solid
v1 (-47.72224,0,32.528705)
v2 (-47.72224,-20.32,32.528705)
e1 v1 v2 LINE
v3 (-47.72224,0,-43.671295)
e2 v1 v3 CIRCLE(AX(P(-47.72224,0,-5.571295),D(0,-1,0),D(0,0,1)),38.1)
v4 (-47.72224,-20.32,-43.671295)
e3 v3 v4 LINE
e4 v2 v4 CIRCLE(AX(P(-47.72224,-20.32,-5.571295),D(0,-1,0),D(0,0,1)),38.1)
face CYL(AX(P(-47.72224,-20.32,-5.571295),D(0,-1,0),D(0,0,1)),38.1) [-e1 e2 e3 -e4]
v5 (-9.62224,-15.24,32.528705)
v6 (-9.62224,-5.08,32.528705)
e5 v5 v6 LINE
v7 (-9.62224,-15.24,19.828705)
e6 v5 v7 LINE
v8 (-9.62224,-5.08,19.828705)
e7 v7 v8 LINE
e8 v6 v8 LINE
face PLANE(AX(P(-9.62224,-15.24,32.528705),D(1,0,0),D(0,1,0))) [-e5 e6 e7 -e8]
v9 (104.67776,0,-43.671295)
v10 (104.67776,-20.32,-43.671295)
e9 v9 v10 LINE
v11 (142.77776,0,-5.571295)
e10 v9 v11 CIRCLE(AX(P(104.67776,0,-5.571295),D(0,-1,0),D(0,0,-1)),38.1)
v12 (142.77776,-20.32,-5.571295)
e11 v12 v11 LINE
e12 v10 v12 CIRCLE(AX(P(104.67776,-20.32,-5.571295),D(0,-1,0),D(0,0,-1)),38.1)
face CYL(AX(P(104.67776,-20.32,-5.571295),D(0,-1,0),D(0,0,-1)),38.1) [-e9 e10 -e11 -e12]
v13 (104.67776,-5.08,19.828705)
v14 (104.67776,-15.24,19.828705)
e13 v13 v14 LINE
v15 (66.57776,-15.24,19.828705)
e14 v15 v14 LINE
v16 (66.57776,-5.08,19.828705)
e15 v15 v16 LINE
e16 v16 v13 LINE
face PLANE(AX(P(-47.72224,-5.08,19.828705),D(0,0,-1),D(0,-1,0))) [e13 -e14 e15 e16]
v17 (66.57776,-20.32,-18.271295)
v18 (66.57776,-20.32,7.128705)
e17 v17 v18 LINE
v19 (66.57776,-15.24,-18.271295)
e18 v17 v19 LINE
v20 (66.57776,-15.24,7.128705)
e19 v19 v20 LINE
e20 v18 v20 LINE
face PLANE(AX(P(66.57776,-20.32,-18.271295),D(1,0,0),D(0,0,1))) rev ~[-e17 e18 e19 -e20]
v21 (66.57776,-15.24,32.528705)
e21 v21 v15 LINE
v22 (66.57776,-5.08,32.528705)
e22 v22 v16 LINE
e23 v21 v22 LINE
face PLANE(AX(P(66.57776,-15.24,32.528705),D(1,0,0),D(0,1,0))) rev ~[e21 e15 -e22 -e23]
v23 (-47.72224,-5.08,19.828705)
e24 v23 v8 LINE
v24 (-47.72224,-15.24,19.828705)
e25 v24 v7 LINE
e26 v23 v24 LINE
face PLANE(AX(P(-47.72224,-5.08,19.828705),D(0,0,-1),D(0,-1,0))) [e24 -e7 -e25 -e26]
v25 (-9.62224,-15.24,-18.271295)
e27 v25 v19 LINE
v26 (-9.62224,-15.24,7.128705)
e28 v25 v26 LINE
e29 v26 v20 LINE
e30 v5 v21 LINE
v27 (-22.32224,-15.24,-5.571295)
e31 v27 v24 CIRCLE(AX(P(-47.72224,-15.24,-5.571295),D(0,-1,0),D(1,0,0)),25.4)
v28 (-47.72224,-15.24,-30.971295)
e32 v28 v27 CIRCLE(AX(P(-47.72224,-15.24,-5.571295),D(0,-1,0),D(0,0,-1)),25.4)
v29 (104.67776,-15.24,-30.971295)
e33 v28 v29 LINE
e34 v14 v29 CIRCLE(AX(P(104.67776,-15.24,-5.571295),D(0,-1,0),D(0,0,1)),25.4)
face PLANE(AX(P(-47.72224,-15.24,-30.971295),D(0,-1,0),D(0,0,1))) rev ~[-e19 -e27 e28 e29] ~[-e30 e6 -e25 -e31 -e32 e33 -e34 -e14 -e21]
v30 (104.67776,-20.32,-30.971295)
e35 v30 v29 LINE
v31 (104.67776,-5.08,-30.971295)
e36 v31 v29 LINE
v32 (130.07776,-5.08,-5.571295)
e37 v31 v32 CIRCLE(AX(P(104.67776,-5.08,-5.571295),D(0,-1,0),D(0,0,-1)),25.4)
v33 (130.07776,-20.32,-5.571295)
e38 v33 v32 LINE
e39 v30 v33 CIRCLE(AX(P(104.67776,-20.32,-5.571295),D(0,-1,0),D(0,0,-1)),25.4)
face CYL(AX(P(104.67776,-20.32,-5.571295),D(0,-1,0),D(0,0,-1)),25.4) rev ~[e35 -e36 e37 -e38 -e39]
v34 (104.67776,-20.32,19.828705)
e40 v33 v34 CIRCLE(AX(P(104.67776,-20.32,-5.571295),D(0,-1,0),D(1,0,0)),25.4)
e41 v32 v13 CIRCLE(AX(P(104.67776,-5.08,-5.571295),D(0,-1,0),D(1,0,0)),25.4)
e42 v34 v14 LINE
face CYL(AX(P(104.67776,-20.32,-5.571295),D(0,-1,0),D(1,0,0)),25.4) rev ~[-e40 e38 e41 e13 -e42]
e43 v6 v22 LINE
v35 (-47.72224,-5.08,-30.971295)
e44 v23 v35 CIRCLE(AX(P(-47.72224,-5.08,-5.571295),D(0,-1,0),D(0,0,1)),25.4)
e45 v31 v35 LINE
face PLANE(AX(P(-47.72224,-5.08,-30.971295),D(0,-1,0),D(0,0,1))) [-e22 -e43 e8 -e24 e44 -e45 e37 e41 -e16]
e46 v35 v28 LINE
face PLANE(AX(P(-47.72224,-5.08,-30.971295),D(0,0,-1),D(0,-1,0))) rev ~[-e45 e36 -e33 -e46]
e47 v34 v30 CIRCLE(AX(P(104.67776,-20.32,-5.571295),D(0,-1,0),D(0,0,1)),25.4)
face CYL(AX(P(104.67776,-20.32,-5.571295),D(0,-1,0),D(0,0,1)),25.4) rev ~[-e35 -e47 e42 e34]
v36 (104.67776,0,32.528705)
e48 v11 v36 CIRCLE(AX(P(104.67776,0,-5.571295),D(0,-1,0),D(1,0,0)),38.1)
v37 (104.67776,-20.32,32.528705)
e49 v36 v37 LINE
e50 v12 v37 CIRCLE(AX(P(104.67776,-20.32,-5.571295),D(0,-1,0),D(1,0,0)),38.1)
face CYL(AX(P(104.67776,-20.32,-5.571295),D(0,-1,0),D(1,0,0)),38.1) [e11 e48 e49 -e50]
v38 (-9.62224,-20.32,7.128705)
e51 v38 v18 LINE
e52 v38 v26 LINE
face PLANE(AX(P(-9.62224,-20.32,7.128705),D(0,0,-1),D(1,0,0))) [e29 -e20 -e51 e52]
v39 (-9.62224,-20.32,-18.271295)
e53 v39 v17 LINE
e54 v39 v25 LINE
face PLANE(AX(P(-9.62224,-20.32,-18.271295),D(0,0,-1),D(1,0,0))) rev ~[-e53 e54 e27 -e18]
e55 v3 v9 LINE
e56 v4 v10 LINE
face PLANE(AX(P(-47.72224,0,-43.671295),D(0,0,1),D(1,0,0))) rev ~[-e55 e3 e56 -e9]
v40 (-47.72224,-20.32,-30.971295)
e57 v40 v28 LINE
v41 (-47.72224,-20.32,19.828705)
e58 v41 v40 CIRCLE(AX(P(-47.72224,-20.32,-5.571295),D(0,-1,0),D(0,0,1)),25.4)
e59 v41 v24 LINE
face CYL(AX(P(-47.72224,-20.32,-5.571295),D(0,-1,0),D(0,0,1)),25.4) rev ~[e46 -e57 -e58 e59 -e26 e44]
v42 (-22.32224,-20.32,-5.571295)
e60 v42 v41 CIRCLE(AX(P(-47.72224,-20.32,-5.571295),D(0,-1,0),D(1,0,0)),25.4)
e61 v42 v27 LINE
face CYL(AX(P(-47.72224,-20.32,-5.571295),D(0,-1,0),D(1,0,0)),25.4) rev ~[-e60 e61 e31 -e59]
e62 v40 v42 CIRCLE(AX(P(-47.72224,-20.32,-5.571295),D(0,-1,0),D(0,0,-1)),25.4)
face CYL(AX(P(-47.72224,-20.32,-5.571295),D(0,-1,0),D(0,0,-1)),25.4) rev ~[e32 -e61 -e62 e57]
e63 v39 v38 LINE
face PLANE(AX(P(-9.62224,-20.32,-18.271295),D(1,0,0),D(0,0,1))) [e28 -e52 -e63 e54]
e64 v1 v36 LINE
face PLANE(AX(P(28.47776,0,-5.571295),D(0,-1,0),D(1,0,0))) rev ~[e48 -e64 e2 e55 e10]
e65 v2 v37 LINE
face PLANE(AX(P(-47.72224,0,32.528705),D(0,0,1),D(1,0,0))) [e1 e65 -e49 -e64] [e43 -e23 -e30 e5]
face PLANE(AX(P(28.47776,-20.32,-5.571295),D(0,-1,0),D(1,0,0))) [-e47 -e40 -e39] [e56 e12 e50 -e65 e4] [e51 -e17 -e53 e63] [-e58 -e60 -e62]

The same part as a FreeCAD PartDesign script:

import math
import FreeCAD as App
import Part
import Sketcher

V = App.Vector
Q = App.Units.Quantity


def add_polygon(sketch, points):
    """Adds a closed chain of lines whose ends are joined by coincident constraints."""
    first, n = sketch.GeometryCount, len(points)
    for a, b in zip(points, points[1:] + points[:1]):
        sketch.addGeometry(Part.LineSegment(App.Vector(*a, 0), App.Vector(*b, 0)), False)
    for i in range(n):
        sketch.addConstraint(Sketcher.Constraint("Coincident", first + i, 2, first + (i + 1) % n, 1))

doc = App.newDocument("Part")
body = doc.addObject("PartDesign::Body", "Body")

sketch1 = body.newObject("Sketcher::SketchObject", "Sketch")
sketch1.AttachmentSupport = (doc.getObject("XZ_Plane"), [""])
sketch1.MapMode = "FlatFace"
add_polygon(sketch1, [(-47.72224, 32.528705), (-47.72224, -43.671295), (104.67776, -43.671295), (104.67776, 32.528705)])
sketch1.addConstraint(Sketcher.Constraint("Vertical", 0))
sketch1.addConstraint(Sketcher.Constraint("Horizontal", 1))
sketch1.addConstraint(Sketcher.Constraint("Vertical", 2))
sketch1.addConstraint(Sketcher.Constraint("Horizontal", 3))
sketch1.addConstraint(Sketcher.Constraint("DistanceX", 1, 1, 1, 2, Q("6 in")))
sketch1.addConstraint(Sketcher.Constraint("DistanceY", 0, 2, 0, 1, Q("3 in")))
sketch1.addConstraint(Sketcher.Constraint("DistanceX", 0, 2, -1, 1, 47.72224))
sketch1.addConstraint(Sketcher.Constraint("DistanceY", 0, 2, -1, 1, 43.671295))
pad1 = body.newObject("PartDesign::Pad", "Pad")
pad1.Profile = sketch1
pad1.Length = Q("0.8 in")

sketch2 = body.newObject("Sketcher::SketchObject", "Sketch001")
sketch2.AttachmentSupport = (doc.getObject("XY_Plane"), [""])
sketch2.MapMode = "FlatFace"
sketch2.AttachmentOffset = App.Placement(V(0, 0, 32.528705), App.Rotation())
add_polygon(sketch2, [(-9.62224, -5.08), (-9.62224, -15.24), (66.57776, -15.24), (66.57776, -5.08)])
sketch2.addConstraint(Sketcher.Constraint("Vertical", 0))
sketch2.addConstraint(Sketcher.Constraint("Horizontal", 1))
sketch2.addConstraint(Sketcher.Constraint("Vertical", 2))
sketch2.addConstraint(Sketcher.Constraint("Horizontal", 3))
sketch2.addConstraint(Sketcher.Constraint("DistanceX", 1, 1, 1, 2, Q("3 in")))
sketch2.addConstraint(Sketcher.Constraint("DistanceY", 0, 2, 0, 1, Q("0.4 in")))
sketch2.addConstraint(Sketcher.Constraint("DistanceY", 0, 2, -1, 1, Q("0.6 in")))
sketch2.addConstraint(Sketcher.Constraint("DistanceX", 0, 2, -1, 1, 9.62224))
pocket1 = body.newObject("PartDesign::Pocket", "Pocket")
pocket1.Profile = sketch2
pocket1.Length = Q("2.5 in")

sketch3 = body.newObject("Sketcher::SketchObject", "Sketch002")
sketch3.AttachmentSupport = (doc.getObject("YZ_Plane"), [""])
sketch3.MapMode = "FlatFace"
sketch3.AttachmentOffset = App.Placement(V(0, 0, -47.72224), App.Rotation())
add_polygon(sketch3, [(-5.08, 19.828705), (-5.08, -30.971295), (-15.24, -30.971295), (-15.24, 19.828705)])
sketch3.addConstraint(Sketcher.Constraint("Vertical", 0))
sketch3.addConstraint(Sketcher.Constraint("Horizontal", 1))
sketch3.addConstraint(Sketcher.Constraint("Vertical", 2))
sketch3.addConstraint(Sketcher.Constraint("Horizontal", 3))
sketch3.addConstraint(Sketcher.Constraint("DistanceY", 0, 2, 0, 1, Q("2 in")))
sketch3.addConstraint(Sketcher.Constraint("DistanceX", 1, 2, 1, 1, Q("0.4 in")))
sketch3.addConstraint(Sketcher.Constraint("DistanceX", 0, 2, -1, 1, Q("0.2 in")))
sketch3.addConstraint(Sketcher.Constraint("DistanceY", 0, 2, -1, 1, 30.971295))
pocket2 = body.newObject("PartDesign::Pocket", "Pocket001")
pocket2.Profile = sketch3
pocket2.Length = Q("6 in")
pocket2.Reversed = True

sketch4 = body.newObject("Sketcher::SketchObject", "Sketch003")
sketch4.AttachmentSupport = (doc.getObject("XZ_Plane"), [""])
sketch4.MapMode = "FlatFace"
sketch4.AttachmentOffset = App.Placement(V(0, 0, 0.8 * 25.4), App.Rotation())
sketch4.addGeometry(Part.LineSegment(V(-47.72224, -43.671295, 0), V(-47.72224, 32.528705, 0)), False)
sketch4.addGeometry(Part.ArcOfCircle(Part.Circle(V(-47.72224, -5.571295, 0), V(0, 0, 1), 38.1), math.radians(90), math.radians(270)), False)
sketch4.addGeometry(Part.ArcOfCircle(Part.Circle(V(104.67776, -5.571295, 0), V(0, 0, 1), 38.1), math.radians(0), math.radians(90)), False)
sketch4.addGeometry(Part.LineSegment(V(104.67776, 32.528705, 0), V(104.67776, -43.671295, 0)), False)
sketch4.addGeometry(Part.ArcOfCircle(Part.Circle(V(104.67776, -5.571295, 0), V(0, 0, 1), 38.1), math.radians(-90), math.radians(0)), False)
sketch4.addConstraint(Sketcher.Constraint("Coincident", 0, 1, 1, 2))
sketch4.addConstraint(Sketcher.Constraint("Coincident", 1, 1, 0, 2))
sketch4.addConstraint(Sketcher.Constraint("Coincident", 2, 2, 3, 1))
sketch4.addConstraint(Sketcher.Constraint("Coincident", 3, 2, 4, 1))
sketch4.addConstraint(Sketcher.Constraint("Tangent", 4, 2, 2, 1))
sketch4.addConstraint(Sketcher.Constraint("Vertical", 0))
sketch4.addConstraint(Sketcher.Constraint("Vertical", 3))
sketch4.addConstraint(Sketcher.Constraint("Equal", 1, 2))
sketch4.addConstraint(Sketcher.Constraint("Equal", 2, 4))
sketch4.addConstraint(Sketcher.Constraint("Horizontal", 1, 3, 2, 3))
sketch4.addConstraint(Sketcher.Constraint("Horizontal", 2, 3, 4, 2))
sketch4.addConstraint(Sketcher.Constraint("Vertical", 1, 3, 0, 1))
sketch4.addConstraint(Sketcher.Constraint("Vertical", 4, 3, 2, 2))
sketch4.addConstraint(Sketcher.Constraint("Radius", 1, Q("1.5 in")))
sketch4.addConstraint(Sketcher.Constraint("DistanceX", 1, 3, 2, 3, Q("6 in")))
sketch4.addConstraint(Sketcher.Constraint("DistanceX", 1, 3, -1, 1, 47.72224))
sketch4.addConstraint(Sketcher.Constraint("DistanceY", 1, 3, -1, 1, 5.571295))
pad2 = body.newObject("PartDesign::Pad", "Pad001")
pad2.Profile = sketch4
pad2.Length = Q("0.8 in")
pad2.Reversed = True

sketch5 = body.newObject("Sketcher::SketchObject", "Sketch004")
sketch5.AttachmentSupport = (doc.getObject("XZ_Plane"), [""])
sketch5.MapMode = "FlatFace"
sketch5.AttachmentOffset = App.Placement(V(0, 0, 0.8 * 25.4), App.Rotation())
sketch5.addGeometry(Part.ArcOfCircle(Part.Circle(V(-47.72224, -5.571295, 0), V(0, 0, 1), 25.4), math.radians(90), math.radians(270)), False)
sketch5.addGeometry(Part.ArcOfCircle(Part.Circle(V(-47.72224, -5.571295, 0), V(0, 0, 1), 25.4), math.radians(-90), math.radians(0)), False)
sketch5.addGeometry(Part.ArcOfCircle(Part.Circle(V(-47.72224, -5.571295, 0), V(0, 0, 1), 25.4), math.radians(0), math.radians(90)), False)
sketch5.addGeometry(Part.ArcOfCircle(Part.Circle(V(104.67776, -5.571295, 0), V(0, 0, 1), 25.4), math.radians(90), math.radians(270)), False)
sketch5.addGeometry(Part.ArcOfCircle(Part.Circle(V(104.67776, -5.571295, 0), V(0, 0, 1), 25.4), math.radians(-90), math.radians(0)), False)
sketch5.addGeometry(Part.ArcOfCircle(Part.Circle(V(104.67776, -5.571295, 0), V(0, 0, 1), 25.4), math.radians(0), math.radians(90)), False)
sketch5.addConstraint(Sketcher.Constraint("Tangent", 0, 2, 1, 1))
sketch5.addConstraint(Sketcher.Constraint("Tangent", 1, 2, 2, 1))
sketch5.addConstraint(Sketcher.Constraint("Tangent", 2, 2, 0, 1))
sketch5.addConstraint(Sketcher.Constraint("Tangent", 3, 2, 4, 1))
sketch5.addConstraint(Sketcher.Constraint("Tangent", 4, 2, 5, 1))
sketch5.addConstraint(Sketcher.Constraint("Tangent", 5, 2, 3, 1))
sketch5.addConstraint(Sketcher.Constraint("Equal", 2, 3))
sketch5.addConstraint(Sketcher.Constraint("Horizontal", 2, 3, 3, 3))
sketch5.addConstraint(Sketcher.Constraint("Horizontal", 5, 3, 1, 2))
sketch5.addConstraint(Sketcher.Constraint("Horizontal", 1, 2, 4, 2))
sketch5.addConstraint(Sketcher.Constraint("Vertical", 2, 3, 0, 2))
sketch5.addConstraint(Sketcher.Constraint("Vertical", 0, 2, 2, 2))
sketch5.addConstraint(Sketcher.Constraint("Vertical", 5, 3, 3, 2))
sketch5.addConstraint(Sketcher.Constraint("Vertical", 3, 2, 5, 2))
sketch5.addConstraint(Sketcher.Constraint("Radius", 0, Q("1 in")))
sketch5.addConstraint(Sketcher.Constraint("DistanceX", 0, 3, 3, 3, Q("6 in")))
sketch5.addConstraint(Sketcher.Constraint("DistanceX", 0, 3, -1, 1, 47.72224))
sketch5.addConstraint(Sketcher.Constraint("DistanceY", 0, 3, -1, 1, 5.571295))
pocket3 = body.newObject("PartDesign::Pocket", "Pocket002")
pocket3.Profile = sketch5
pocket3.Length = Q("0.6 in")

sketch6 = body.newObject("Sketcher::SketchObject", "Sketch005")
sketch6.AttachmentSupport = (doc.getObject("XZ_Plane"), [""])
sketch6.MapMode = "FlatFace"
sketch6.AttachmentOffset = App.Placement(V(0, 0, 0.8 * 25.4), App.Rotation())
add_polygon(sketch6, [(-9.62224, 7.128705), (-9.62224, -18.271295), (66.57776, -18.271295), (66.57776, 7.128705)])
sketch6.addConstraint(Sketcher.Constraint("Vertical", 0))
sketch6.addConstraint(Sketcher.Constraint("Horizontal", 1))
sketch6.addConstraint(Sketcher.Constraint("Vertical", 2))
sketch6.addConstraint(Sketcher.Constraint("Horizontal", 3))
sketch6.addConstraint(Sketcher.Constraint("DistanceX", 1, 1, 1, 2, Q("3 in")))
sketch6.addConstraint(Sketcher.Constraint("DistanceY", 0, 2, 0, 1, Q("1 in")))
sketch6.addConstraint(Sketcher.Constraint("DistanceX", 0, 2, -1, 1, 9.62224))
sketch6.addConstraint(Sketcher.Constraint("DistanceY", 0, 2, -1, 1, 18.271295))
pocket4 = body.newObject("PartDesign::Pocket", "Pocket003")
pocket4.Profile = sketch6
pocket4.Length = Q("0.2 in")

doc.recompute()
